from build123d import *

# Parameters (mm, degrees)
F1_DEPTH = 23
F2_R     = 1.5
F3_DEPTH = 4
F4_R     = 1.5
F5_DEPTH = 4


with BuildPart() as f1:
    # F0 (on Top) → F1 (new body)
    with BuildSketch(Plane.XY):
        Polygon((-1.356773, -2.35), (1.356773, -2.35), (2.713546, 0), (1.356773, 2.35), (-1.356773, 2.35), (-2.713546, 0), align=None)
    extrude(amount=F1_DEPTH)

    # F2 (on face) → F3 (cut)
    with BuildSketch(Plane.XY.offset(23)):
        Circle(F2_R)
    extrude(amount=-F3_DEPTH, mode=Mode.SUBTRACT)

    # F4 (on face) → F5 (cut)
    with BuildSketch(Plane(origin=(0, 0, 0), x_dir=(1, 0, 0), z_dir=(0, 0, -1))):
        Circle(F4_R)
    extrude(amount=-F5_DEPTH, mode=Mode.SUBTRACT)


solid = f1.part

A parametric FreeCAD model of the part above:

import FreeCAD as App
import Part
import Sketcher
Q = App.Units.Quantity


def add_polygon(sketch, points):
    """Adds a closed chain of lines whose ends are joined by coincident constraints."""
    first, n = sketch.GeometryCount, len(points)
    for a, b in zip(points, points[1:] + points[:1]):
        sketch.addGeometry(Part.LineSegment(App.Vector(*a, 0), App.Vector(*b, 0)), False)
    for i in range(n):
        sketch.addConstraint(Sketcher.Constraint("Coincident", first + i, 2, first + (i + 1) % n, 1))

doc = App.newDocument("Part")
body = doc.addObject("PartDesign::Body", "Body")

sketch1 = doc.addObject("Sketcher::SketchObject", "Sketch")
body.addObject(sketch1)
sketch1.AttachmentSupport = (doc.XY_Plane, [""])
sketch1.MapMode = "FlatFace"
add_polygon(sketch1, [(-1.4, -2.4), (1.4, -2.4), (2.7, 0), (1.4, 2.4), (-1.4, 2.4), (-2.7, 0)])
sketch1.addConstraint(Sketcher.Constraint("Horizontal", 0))
sketch1.addConstraint(Sketcher.Constraint("Horizontal", 3))
sketch1.addConstraint(Sketcher.Constraint("Symmetric", 0, 2, 3, 2, -1, 1))
sketch1.addConstraint(Sketcher.Constraint("Symmetric", 1, 2, 4, 2, -1, 1))
sketch1.addConstraint(Sketcher.Constraint("PointOnObject", 1, 2, -1))
sketch1.addConstraint(Sketcher.Constraint("Parallel", 2, 5))
sketch1.addConstraint(Sketcher.Constraint("Vertical", 0, 2, 2, 2))
sketch1.addConstraint(Sketcher.Constraint("Angle", 1, Q("60.000002 deg")))
sketch1.addConstraint(Sketcher.Constraint("DistanceY", 0, 2, 2, 2, 4.7))
sketch1.addConstraint(Sketcher.Constraint("DistanceX", 0, 1, 0, 2, 2.713546))
pad1 = doc.addObject("PartDesign::Pad", "Pad")
body.addObject(pad1)
pad1.Profile = sketch1
pad1.Length = 23

sketch2 = doc.addObject("Sketcher::SketchObject", "Sketch001")
body.addObject(sketch2)
sketch2.AttachmentSupport = (doc.XY_Plane, [""])
sketch2.MapMode = "FlatFace"
sketch2.AttachmentOffset = App.Placement(App.Vector(0, 0, 23), App.Rotation())
sketch2.addGeometry(Part.Circle(App.Vector(0, 0, 0), App.Vector(0, 0, 1), 1.5), False)
sketch2.addConstraint(Sketcher.Constraint("Coincident", 0, 3, -1, 1))
sketch2.addConstraint(Sketcher.Constraint("Diameter", 0, 3.0))
pocket1 = doc.addObject("PartDesign::Pocket", "Pocket")
body.addObject(pocket1)
pocket1.Profile = sketch2
pocket1.Length = 4

sketch3 = doc.addObject("Sketcher::SketchObject", "Sketch002")
body.addObject(sketch3)
sketch3.AttachmentSupport = (doc.XY_Plane, [""])
sketch3.MapMode = "FlatFace"
sketch3.addGeometry(Part.Circle(App.Vector(0, 0, 0), App.Vector(0, 0, 1), 1.5), False)
sketch3.addConstraint(Sketcher.Constraint("Coincident", 0, 3, -1, 1))
sketch3.addConstraint(Sketcher.Constraint("Diameter", 0, 3.0))
pocket2 = doc.addObject("PartDesign::Pocket", "Pocket001")
body.addObject(pocket2)
pocket2.Profile = sketch3
pocket2.Length = 4
pocket2.Reversed = True

doc.recompute()
